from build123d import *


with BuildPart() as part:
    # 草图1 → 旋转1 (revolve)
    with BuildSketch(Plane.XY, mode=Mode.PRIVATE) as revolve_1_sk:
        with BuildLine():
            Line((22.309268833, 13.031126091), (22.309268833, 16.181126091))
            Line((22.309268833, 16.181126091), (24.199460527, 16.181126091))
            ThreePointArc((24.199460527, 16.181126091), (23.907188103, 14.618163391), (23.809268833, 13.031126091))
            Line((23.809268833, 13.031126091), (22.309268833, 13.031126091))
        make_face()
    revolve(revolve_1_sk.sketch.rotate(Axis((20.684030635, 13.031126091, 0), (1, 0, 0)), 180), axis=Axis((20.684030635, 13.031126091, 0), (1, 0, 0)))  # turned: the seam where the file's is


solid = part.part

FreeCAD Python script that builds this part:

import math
import FreeCAD as App
import Part
import Sketcher

doc = App.newDocument("Part")
body = doc.addObject("PartDesign::Body", "Body")

# Sketch on XY plane
sketch1 = body.newObject("Sketcher::SketchObject", "Sketch")
sketch1.AttachmentSupport = (doc.getObject("XY_Plane"), [""])
sketch1.MapMode = "FlatFace"
sketch1.addGeometry([
    Part.LineSegment(App.Vector(22.309269, 16.181126, 0), App.Vector(22.309269, 13.031126, 0)),
    Part.LineSegment(App.Vector(22.309269, 13.031126, 0), App.Vector(23.809269, 13.031126, 0)),
    Part.ArcOfCircle(Part.Circle(App.Vector(36.719269, 13.031126, 0), App.Vector(0, 0, 1), 12.91), math.radians(165.877438), math.radians(180)),
    Part.LineSegment(App.Vector(24.199461, 16.181126, 0), App.Vector(22.309269, 16.181126, 0)),
], False)
sketch1.addGeometry(Part.LineSegment(App.Vector(22.309269, 13.031126, 0), App.Vector(36.719269, 13.031126, 0)), True)  # axis
sketch1.addConstraint([
    Sketcher.Constraint("Coincident", 0, 2, 1, 1),
    Sketcher.Constraint("Coincident", 1, 2, 2, 2),
    Sketcher.Constraint("Coincident", 2, 1, 3, 1),
    Sketcher.Constraint("Coincident", 3, 2, 0, 1),
    Sketcher.Constraint("Vertical", 0),
    Sketcher.Constraint("Horizontal", 1),
    Sketcher.Constraint("Horizontal", 3),
    Sketcher.Constraint("Horizontal", 4),
    Sketcher.Constraint("Coincident", 4, 1, 0, 2),
    Sketcher.Constraint("Coincident", 4, 2, 2, 3),
    Sketcher.Constraint("Radius", 2, 12.91),
    Sketcher.Constraint("DistanceX", 1, 1, 1, 2, 1.5),
    Sketcher.Constraint("DistanceY", 0, 2, 0, 1, 3.15),
    Sketcher.Constraint("DistanceX", -1, 1, 2, 3, 36.719269),
    Sketcher.Constraint("DistanceY", -1, 1, 2, 3, 13.031126),
])
revolution = body.newObject("PartDesign::Revolution", "Revolution")
revolution.Profile = sketch1
revolution.ReferenceAxis = (sketch1, ["Axis0"])
revolution.Angle = 360

doc.recompute()
